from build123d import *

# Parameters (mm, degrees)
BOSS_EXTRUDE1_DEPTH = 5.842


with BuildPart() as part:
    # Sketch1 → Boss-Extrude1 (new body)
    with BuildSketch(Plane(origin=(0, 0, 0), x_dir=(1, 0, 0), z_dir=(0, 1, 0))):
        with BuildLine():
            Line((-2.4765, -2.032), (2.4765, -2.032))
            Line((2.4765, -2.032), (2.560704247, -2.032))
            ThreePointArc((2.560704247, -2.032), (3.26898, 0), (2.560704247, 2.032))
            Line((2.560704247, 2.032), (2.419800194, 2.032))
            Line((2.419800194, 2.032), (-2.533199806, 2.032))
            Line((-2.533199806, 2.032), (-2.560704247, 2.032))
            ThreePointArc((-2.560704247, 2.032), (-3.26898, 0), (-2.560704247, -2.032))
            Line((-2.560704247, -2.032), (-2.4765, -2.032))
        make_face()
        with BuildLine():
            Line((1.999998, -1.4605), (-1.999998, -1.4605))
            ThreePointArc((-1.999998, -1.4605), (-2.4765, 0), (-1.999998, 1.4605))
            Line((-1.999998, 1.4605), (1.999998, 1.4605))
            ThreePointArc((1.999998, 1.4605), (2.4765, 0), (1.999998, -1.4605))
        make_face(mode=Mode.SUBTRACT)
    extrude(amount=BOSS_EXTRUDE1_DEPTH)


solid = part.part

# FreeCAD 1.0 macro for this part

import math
import FreeCAD as App
import Part
import Sketcher
Q = App.Units.Quantity

doc = App.newDocument("Part")
body = doc.addObject("PartDesign::Body", "Body")

# Sketch on XZ plane
sketch1 = body.newObject("Sketcher::SketchObject", "Sketch")
sketch1.AttachmentSupport = (doc.getObject("XZ_Plane"), [""])
sketch1.MapMode = "FlatFace"
sketch1.addGeometry(Part.ArcOfCircle(Part.Circle(App.Vector(0, 0, 0), App.Vector(0, 0, 1), 3.3), math.radians(-38), math.radians(38)), False)
sketch1.addGeometry(Part.LineSegment(App.Vector(2.6, -2, 0), App.Vector(-2.6, -2, 0)), False)
sketch1.addGeometry(Part.ArcOfCircle(Part.Circle(App.Vector(0, 0, 0), App.Vector(0, 0, 1), 3.3), math.radians(142), math.radians(218)), False)
sketch1.addGeometry(Part.LineSegment(App.Vector(-2.6, 2, 0), App.Vector(2.6, 2, 0)), False)
sketch1.addGeometry(Part.ArcOfCircle(Part.Circle(App.Vector(0, 0, 0), App.Vector(0, 0, 1), 2.5), math.radians(-36), math.radians(36)), False)
sketch1.addGeometry(Part.LineSegment(App.Vector(2, 1.5, 0), App.Vector(-2, 1.5, 0)), False)
sketch1.addGeometry(Part.ArcOfCircle(Part.Circle(App.Vector(0, 0, 0), App.Vector(0, 0, 1), 2.5), math.radians(144), math.radians(216)), False)
sketch1.addGeometry(Part.LineSegment(App.Vector(-2, -1.5, 0), App.Vector(2, -1.5, 0)), False)
sketch1.addConstraint(Sketcher.Constraint("Coincident", 0, 1, 1, 1))
sketch1.addConstraint(Sketcher.Constraint("Coincident", 1, 2, 2, 2))
sketch1.addConstraint(Sketcher.Constraint("Coincident", 2, 1, 3, 1))
sketch1.addConstraint(Sketcher.Constraint("Coincident", 3, 2, 0, 2))
sketch1.addConstraint(Sketcher.Constraint("Coincident", 4, 2, 5, 1))
sketch1.addConstraint(Sketcher.Constraint("Coincident", 5, 2, 6, 1))
sketch1.addConstraint(Sketcher.Constraint("Coincident", 6, 2, 7, 1))
sketch1.addConstraint(Sketcher.Constraint("Coincident", 7, 2, 4, 1))
sketch1.addConstraint(Sketcher.Constraint("Horizontal", 1))
sketch1.addConstraint(Sketcher.Constraint("Horizontal", 3))
sketch1.addConstraint(Sketcher.Constraint("Horizontal", 5))
sketch1.addConstraint(Sketcher.Constraint("Horizontal", 7))
sketch1.addConstraint(Sketcher.Constraint("Coincident", 0, 3, -1, 1))
sketch1.addConstraint(Sketcher.Constraint("Coincident", 2, 3, -1, 1))
sketch1.addConstraint(Sketcher.Constraint("Coincident", 4, 3, -1, 1))
sketch1.addConstraint(Sketcher.Constraint("Coincident", 6, 3, -1, 1))
sketch1.addConstraint(Sketcher.Constraint("Equal", 0, 2))
sketch1.addConstraint(Sketcher.Constraint("Equal", 4, 6))
sketch1.addConstraint(Sketcher.Constraint("Vertical", 1, 2, 2, 1))
sketch1.addConstraint(Sketcher.Constraint("Vertical", 5, 2, 6, 2))
sketch1.addConstraint(Sketcher.Constraint("Radius", 0, Q("0.1287 in")))
sketch1.addConstraint(Sketcher.Constraint("Radius", 4, Q("0.0975 in")))
sketch1.addConstraint(Sketcher.Constraint("DistanceY", 0, 1, -1, 1, Q("0.08 in")))
sketch1.addConstraint(Sketcher.Constraint("DistanceY", -1, 1, 4, 2, Q("0.0575 in")))
pad1 = body.newObject("PartDesign::Pad", "Pad")
pad1.Profile = sketch1
pad1.Length = Q("0.23 in")
pad1.Reversed = True

doc.recompute()
